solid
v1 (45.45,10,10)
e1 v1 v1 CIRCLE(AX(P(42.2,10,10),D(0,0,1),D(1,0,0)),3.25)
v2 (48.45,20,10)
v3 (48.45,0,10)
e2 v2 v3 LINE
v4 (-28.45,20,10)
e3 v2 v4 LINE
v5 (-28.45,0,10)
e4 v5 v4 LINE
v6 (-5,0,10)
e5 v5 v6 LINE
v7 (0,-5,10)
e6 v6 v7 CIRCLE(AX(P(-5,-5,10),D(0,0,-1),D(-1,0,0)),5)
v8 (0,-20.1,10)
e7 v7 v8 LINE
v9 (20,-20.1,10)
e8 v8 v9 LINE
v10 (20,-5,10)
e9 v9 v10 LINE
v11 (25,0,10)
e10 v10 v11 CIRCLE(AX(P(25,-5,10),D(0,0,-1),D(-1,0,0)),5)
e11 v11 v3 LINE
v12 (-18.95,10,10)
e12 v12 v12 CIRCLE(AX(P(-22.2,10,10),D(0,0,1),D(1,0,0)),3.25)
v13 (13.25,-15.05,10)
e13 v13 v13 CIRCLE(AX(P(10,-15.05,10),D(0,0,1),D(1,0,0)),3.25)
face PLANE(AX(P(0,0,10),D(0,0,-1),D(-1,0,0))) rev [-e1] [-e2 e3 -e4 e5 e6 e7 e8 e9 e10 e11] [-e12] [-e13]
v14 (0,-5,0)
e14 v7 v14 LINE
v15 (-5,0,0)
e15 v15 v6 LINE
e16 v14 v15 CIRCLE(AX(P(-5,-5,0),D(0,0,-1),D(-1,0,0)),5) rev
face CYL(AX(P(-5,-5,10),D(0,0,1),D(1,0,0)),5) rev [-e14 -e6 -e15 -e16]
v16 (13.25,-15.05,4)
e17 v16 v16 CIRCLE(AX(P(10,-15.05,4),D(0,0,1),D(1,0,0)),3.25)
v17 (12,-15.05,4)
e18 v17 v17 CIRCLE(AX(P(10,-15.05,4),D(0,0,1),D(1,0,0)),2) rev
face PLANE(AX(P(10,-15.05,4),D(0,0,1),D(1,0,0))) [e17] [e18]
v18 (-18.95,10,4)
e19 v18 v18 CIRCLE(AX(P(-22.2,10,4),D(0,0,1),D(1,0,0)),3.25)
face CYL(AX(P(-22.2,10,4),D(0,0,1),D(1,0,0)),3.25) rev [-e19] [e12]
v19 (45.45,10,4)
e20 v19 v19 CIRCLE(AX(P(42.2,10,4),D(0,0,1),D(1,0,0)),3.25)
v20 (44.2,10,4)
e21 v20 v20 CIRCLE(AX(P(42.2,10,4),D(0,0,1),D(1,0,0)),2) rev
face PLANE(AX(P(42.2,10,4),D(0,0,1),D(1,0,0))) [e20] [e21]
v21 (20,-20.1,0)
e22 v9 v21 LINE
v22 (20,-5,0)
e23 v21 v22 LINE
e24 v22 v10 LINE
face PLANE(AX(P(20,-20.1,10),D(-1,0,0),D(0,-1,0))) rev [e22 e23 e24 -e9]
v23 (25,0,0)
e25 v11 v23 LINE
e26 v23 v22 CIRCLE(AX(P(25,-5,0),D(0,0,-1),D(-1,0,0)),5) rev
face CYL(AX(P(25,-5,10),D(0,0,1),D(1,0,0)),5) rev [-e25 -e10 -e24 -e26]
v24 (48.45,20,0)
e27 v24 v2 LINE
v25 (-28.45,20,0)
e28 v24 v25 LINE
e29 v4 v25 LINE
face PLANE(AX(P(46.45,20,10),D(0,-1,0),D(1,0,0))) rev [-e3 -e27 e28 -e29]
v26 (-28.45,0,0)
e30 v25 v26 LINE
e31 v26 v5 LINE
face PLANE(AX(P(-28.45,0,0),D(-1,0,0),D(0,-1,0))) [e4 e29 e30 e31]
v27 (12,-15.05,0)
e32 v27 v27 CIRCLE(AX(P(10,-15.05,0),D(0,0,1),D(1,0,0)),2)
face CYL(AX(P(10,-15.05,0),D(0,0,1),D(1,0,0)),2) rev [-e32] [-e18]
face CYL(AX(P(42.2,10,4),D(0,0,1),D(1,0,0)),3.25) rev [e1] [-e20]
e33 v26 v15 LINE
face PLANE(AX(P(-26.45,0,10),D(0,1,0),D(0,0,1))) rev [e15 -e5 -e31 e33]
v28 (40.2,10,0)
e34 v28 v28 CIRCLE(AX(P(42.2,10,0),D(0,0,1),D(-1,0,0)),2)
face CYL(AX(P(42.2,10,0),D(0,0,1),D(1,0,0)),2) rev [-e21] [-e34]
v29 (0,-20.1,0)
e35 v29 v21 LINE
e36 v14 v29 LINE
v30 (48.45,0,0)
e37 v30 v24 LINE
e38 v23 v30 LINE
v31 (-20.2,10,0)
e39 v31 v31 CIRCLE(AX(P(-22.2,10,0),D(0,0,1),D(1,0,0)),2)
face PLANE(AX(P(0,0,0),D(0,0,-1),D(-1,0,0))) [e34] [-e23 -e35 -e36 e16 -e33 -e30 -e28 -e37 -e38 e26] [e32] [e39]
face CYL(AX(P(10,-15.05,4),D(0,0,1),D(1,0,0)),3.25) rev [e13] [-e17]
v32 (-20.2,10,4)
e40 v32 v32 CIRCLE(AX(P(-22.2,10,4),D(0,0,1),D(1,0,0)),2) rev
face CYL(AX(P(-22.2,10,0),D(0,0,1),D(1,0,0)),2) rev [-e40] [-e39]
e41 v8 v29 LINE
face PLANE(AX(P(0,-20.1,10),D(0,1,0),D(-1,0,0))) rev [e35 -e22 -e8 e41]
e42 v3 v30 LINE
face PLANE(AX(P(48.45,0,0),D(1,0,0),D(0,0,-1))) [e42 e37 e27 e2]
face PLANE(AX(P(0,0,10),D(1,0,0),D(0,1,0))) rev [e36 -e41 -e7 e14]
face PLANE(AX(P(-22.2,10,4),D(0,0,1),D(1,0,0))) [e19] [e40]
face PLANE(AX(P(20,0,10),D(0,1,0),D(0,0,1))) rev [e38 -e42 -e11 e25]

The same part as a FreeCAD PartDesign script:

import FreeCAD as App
import Part
import Sketcher
Q = App.Units.Quantity


def edges_at(feature, points):
    """Names of the edges that pass closest to the given points."""
    edges = feature.Shape.Edges
    near = lambda p: min(range(len(edges)), key=lambda i: edges[i].distToShape(Part.Vertex(*p))[0])
    return sorted({f"Edge{near(p) + 1}" for p in points})

doc = App.newDocument("Part")
params = doc.addObject("Spreadsheet::Sheet", "Params")
for row, (alias, value) in enumerate([
    ("sketch1_width", "20 mm"),
    ("sketch1_width2", "72.9 mm"),
    ("sketch1_height", "20.1 mm"),
    ("pad1_length", "10 mm"),
    ("sketch2_diameter", "4 mm"),
    ("sketch3_diameter", "6.5 mm"),
    ("pocket2_length", "6 mm"),
    ("fillet_radius", "5 mm"),
    ("sketch4_width", "20 mm"),
    ("sketch4_height", "10 mm"),
    ("pad2_length", "2 mm"),
    ("sketch5_width", "20 mm"),
    ("sketch5_height", "10 mm"),
    ("pad3_length", "2 mm"),
], start=1):
    params.set(f"A{row}", alias)
    params.set(f"B{row}", "=" + value)
    params.setAlias(f"B{row}", alias)

body = doc.addObject("PartDesign::Body", "Body")

sketch1 = body.newObject("Sketcher::SketchObject", "Sketch")
sketch1.AttachmentSupport = (doc.getObject("XY_Plane"), [""])
sketch1.MapMode = "FlatFace"
sketch1.addGeometry(Part.LineSegment(App.Vector(0, 0, 0), App.Vector(0, -20, 0)), False)
sketch1.addGeometry(Part.LineSegment(App.Vector(0, -20, 0), App.Vector(20, -20, 0)), False)
sketch1.addGeometry(Part.LineSegment(App.Vector(20, -20, 0), App.Vector(20, 0, 0)), False)
sketch1.addGeometry(Part.LineSegment(App.Vector(20, 0, 0), App.Vector(46, 0, 0)), False)
sketch1.addGeometry(Part.LineSegment(App.Vector(46, 0, 0), App.Vector(46, 20, 0)), False)
sketch1.addGeometry(Part.LineSegment(App.Vector(46, 20, 0), App.Vector(-26, 20, 0)), False)
sketch1.addGeometry(Part.LineSegment(App.Vector(-26, 20, 0), App.Vector(-26, 0, 0)), False)
sketch1.addGeometry(Part.LineSegment(App.Vector(-26, 0, 0), App.Vector(0, 0, 0)), False)
sketch1.addConstraint(Sketcher.Constraint("Coincident", 0, 2, 1, 1))
sketch1.addConstraint(Sketcher.Constraint("Coincident", 1, 2, 2, 1))
sketch1.addConstraint(Sketcher.Constraint("Coincident", 2, 2, 3, 1))
sketch1.addConstraint(Sketcher.Constraint("Coincident", 3, 2, 4, 1))
sketch1.addConstraint(Sketcher.Constraint("Coincident", 4, 2, 5, 1))
sketch1.addConstraint(Sketcher.Constraint("Coincident", 5, 2, 6, 1))
sketch1.addConstraint(Sketcher.Constraint("Coincident", 6, 2, 7, 1))
sketch1.addConstraint(Sketcher.Constraint("Coincident", 7, 2, 0, 1))
sketch1.addConstraint(Sketcher.Constraint("Vertical", 0))
sketch1.addConstraint(Sketcher.Constraint("Horizontal", 1))
sketch1.addConstraint(Sketcher.Constraint("Vertical", 2))
sketch1.addConstraint(Sketcher.Constraint("Horizontal", 3))
sketch1.addConstraint(Sketcher.Constraint("Vertical", 4))
sketch1.addConstraint(Sketcher.Constraint("Horizontal", 5))
sketch1.addConstraint(Sketcher.Constraint("Vertical", 6))
sketch1.addConstraint(Sketcher.Constraint("Horizontal", 7))
sketch1.addConstraint(Sketcher.Constraint("Coincident", 7, 2, -1, 1))
sketch1.addConstraint(Sketcher.Constraint("PointOnObject", 2, 2, -1))
sketch1.addConstraint(Sketcher.Constraint("Equal", 3, 7))
sketch1.addConstraint(Sketcher.Constraint("Equal", 1, 4))
sketch1.addConstraint(Sketcher.Constraint("DistanceX", 1, 1, 1, 2, Q("20 mm")))
sketch1.addConstraint(Sketcher.Constraint("DistanceX", 5, 2, 5, 1, Q("72.9 mm")))
sketch1.addConstraint(Sketcher.Constraint("DistanceY", 0, 2, 0, 1, Q("20.1 mm")))
sketch1.setExpression("Constraints[20]", "Params.sketch1_width")
sketch1.setExpression("Constraints[21]", "Params.sketch1_width2")
sketch1.setExpression("Constraints[22]", "Params.sketch1_height")
pad1 = body.newObject("PartDesign::Pad", "Pad")
pad1.Profile = sketch1
pad1.setExpression("Length", "Params.pad1_length")

sketch2 = body.newObject("Sketcher::SketchObject", "Sketch001")
sketch2.AttachmentSupport = (doc.getObject("XY_Plane"), [""])
sketch2.MapMode = "FlatFace"
sketch2.AttachmentOffset = App.Placement(App.Vector(0, 0, 10), App.Rotation())
sketch2.addGeometry(Part.Circle(App.Vector(-22.2, 10, 0), App.Vector(0, 0, 1), 2), False)
sketch2.addGeometry(Part.Circle(App.Vector(10, -15.1, 0), App.Vector(0, 0, 1), 2), False)
sketch2.addGeometry(Part.Circle(App.Vector(42.2, 10, 0), App.Vector(0, 0, 1), 2), False)
sketch2.addConstraint(Sketcher.Constraint("Equal", 0, 1))
sketch2.addConstraint(Sketcher.Constraint("Equal", 1, 2))
sketch2.addConstraint(Sketcher.Constraint("Horizontal", 0, 3, 2, 3))
sketch2.addConstraint(Sketcher.Constraint("Diameter", 0, Q("4 mm")))
sketch2.addConstraint(Sketcher.Constraint("DistanceY", -1, 1, 0, 3, Q("10 mm")))
sketch2.addConstraint(Sketcher.Constraint("DistanceX", -1, 1, 1, 3, Q("10 mm")))
sketch2.addConstraint(Sketcher.Constraint("DistanceX", 0, 3, -1, 1, Q("22.2 mm")))
sketch2.addConstraint(Sketcher.Constraint("DistanceX", -1, 1, 2, 3, Q("42.2 mm")))
sketch2.addConstraint(Sketcher.Constraint("DistanceY", 1, 3, -1, 1, Q("15.05 mm")))
sketch2.setExpression("Constraints[3]", "Params.sketch2_diameter")
pocket1 = body.newObject("PartDesign::Pocket", "Pocket")
pocket1.Profile = sketch2
pocket1.Type = "ThroughAll"

sketch3 = body.newObject("Sketcher::SketchObject", "Sketch002")
sketch3.AttachmentSupport = (doc.getObject("XY_Plane"), [""])
sketch3.MapMode = "FlatFace"
sketch3.AttachmentOffset = App.Placement(App.Vector(0, 0, 10), App.Rotation())
sketch3.addGeometry(Part.Circle(App.Vector(-22.2, 10, 0), App.Vector(0, 0, 1), 3.2), False)
sketch3.addGeometry(Part.Circle(App.Vector(42.2, 10, 0), App.Vector(0, 0, 1), 3.2), False)
sketch3.addGeometry(Part.Circle(App.Vector(10, -15.1, 0), App.Vector(0, 0, 1), 3.2), False)
sketch3.addConstraint(Sketcher.Constraint("Equal", 0, 1))
sketch3.addConstraint(Sketcher.Constraint("Equal", 1, 2))
sketch3.addConstraint(Sketcher.Constraint("Horizontal", 0, 3, 1, 3))
sketch3.addConstraint(Sketcher.Constraint("Diameter", 0, Q("6.5 mm")))
sketch3.addConstraint(Sketcher.Constraint("DistanceY", -1, 1, 0, 3, Q("10 mm")))
sketch3.addConstraint(Sketcher.Constraint("DistanceX", -1, 1, 2, 3, Q("10 mm")))
sketch3.addConstraint(Sketcher.Constraint("DistanceX", 0, 3, -1, 1, Q("22.2 mm")))
sketch3.addConstraint(Sketcher.Constraint("DistanceX", -1, 1, 1, 3, Q("42.2 mm")))
sketch3.addConstraint(Sketcher.Constraint("DistanceY", 2, 3, -1, 1, Q("15.05 mm")))
sketch3.setExpression("Constraints[3]", "Params.sketch3_diameter")
pocket2 = body.newObject("PartDesign::Pocket", "Pocket001")
pocket2.Profile = sketch3
pocket2.setExpression("Length", "Params.pocket2_length")
doc.recompute()

fillet = body.newObject("PartDesign::Fillet", "Fillet")
fillet.Base = (pocket2, edges_at(pocket2, [(20, 0, 5), (0, 0, 5)]))
fillet.setExpression("Radius", "Params.fillet_radius")

sketch4 = body.newObject("Sketcher::SketchObject", "Sketch003")
sketch4.AttachmentSupport = (doc.getObject("YZ_Plane"), [""])
sketch4.MapMode = "FlatFace"
sketch4.AttachmentOffset = App.Placement(App.Vector(0, 0, 46.45), App.Rotation())
sketch4.addGeometry(Part.LineSegment(App.Vector(20, 10, 0), App.Vector(0, 10, 0)), False)
sketch4.addGeometry(Part.LineSegment(App.Vector(0, 10, 0), App.Vector(0, 0, 0)), False)
sketch4.addGeometry(Part.LineSegment(App.Vector(0, 0, 0), App.Vector(20, 0, 0)), False)
sketch4.addGeometry(Part.LineSegment(App.Vector(20, 0, 0), App.Vector(20, 10, 0)), False)
sketch4.addConstraint(Sketcher.Constraint("Coincident", 0, 2, 1, 1))
sketch4.addConstraint(Sketcher.Constraint("Coincident", 1, 2, 2, 1))
sketch4.addConstraint(Sketcher.Constraint("Coincident", 2, 2, 3, 1))
sketch4.addConstraint(Sketcher.Constraint("Coincident", 3, 2, 0, 1))
sketch4.addConstraint(Sketcher.Constraint("Horizontal", 0))
sketch4.addConstraint(Sketcher.Constraint("Vertical", 1))
sketch4.addConstraint(Sketcher.Constraint("Horizontal", 2))
sketch4.addConstraint(Sketcher.Constraint("Vertical", 3))
sketch4.addConstraint(Sketcher.Constraint("Coincident", 1, 2, -1, 1))
sketch4.addConstraint(Sketcher.Constraint("DistanceX", 0, 2, 0, 1, Q("20 mm")))
sketch4.addConstraint(Sketcher.Constraint("DistanceY", 1, 2, 1, 1, Q("10 mm")))
sketch4.setExpression("Constraints[9]", "Params.sketch4_width")
sketch4.setExpression("Constraints[10]", "Params.sketch4_height")
pad2 = body.newObject("PartDesign::Pad", "Pad001")
pad2.Profile = sketch4
pad2.setExpression("Length", "Params.pad2_length")

sketch5 = body.newObject("Sketcher::SketchObject", "Sketch004")
sketch5.AttachmentSupport = (doc.getObject("YZ_Plane"), [""])
sketch5.MapMode = "FlatFace"
sketch5.AttachmentOffset = App.Placement(App.Vector(0, 0, -26.45), App.Rotation())
sketch5.addGeometry(Part.LineSegment(App.Vector(20, 0, 0), App.Vector(0, 0, 0)), False)
sketch5.addGeometry(Part.LineSegment(App.Vector(0, 0, 0), App.Vector(0, 10, 0)), False)
sketch5.addGeometry(Part.LineSegment(App.Vector(0, 10, 0), App.Vector(20, 10, 0)), False)
sketch5.addGeometry(Part.LineSegment(App.Vector(20, 10, 0), App.Vector(20, 0, 0)), False)
sketch5.addConstraint(Sketcher.Constraint("Coincident", 0, 2, 1, 1))
sketch5.addConstraint(Sketcher.Constraint("Coincident", 1, 2, 2, 1))
sketch5.addConstraint(Sketcher.Constraint("Coincident", 2, 2, 3, 1))
sketch5.addConstraint(Sketcher.Constraint("Coincident", 3, 2, 0, 1))
sketch5.addConstraint(Sketcher.Constraint("Horizontal", 0))
sketch5.addConstraint(Sketcher.Constraint("Vertical", 1))
sketch5.addConstraint(Sketcher.Constraint("Horizontal", 2))
sketch5.addConstraint(Sketcher.Constraint("Vertical", 3))
sketch5.addConstraint(Sketcher.Constraint("Coincident", 0, 2, -1, 1))
sketch5.addConstraint(Sketcher.Constraint("DistanceX", 0, 2, 0, 1, Q("20 mm")))
sketch5.addConstraint(Sketcher.Constraint("DistanceY", 1, 1, 1, 2, Q("10 mm")))
sketch5.setExpression("Constraints[9]", "Params.sketch5_width")
sketch5.setExpression("Constraints[10]", "Params.sketch5_height")
pad3 = body.newObject("PartDesign::Pad", "Pad002")
pad3.Profile = sketch5
pad3.setExpression("Length", "Params.pad3_length")
pad3.Reversed = True

doc.recompute()
